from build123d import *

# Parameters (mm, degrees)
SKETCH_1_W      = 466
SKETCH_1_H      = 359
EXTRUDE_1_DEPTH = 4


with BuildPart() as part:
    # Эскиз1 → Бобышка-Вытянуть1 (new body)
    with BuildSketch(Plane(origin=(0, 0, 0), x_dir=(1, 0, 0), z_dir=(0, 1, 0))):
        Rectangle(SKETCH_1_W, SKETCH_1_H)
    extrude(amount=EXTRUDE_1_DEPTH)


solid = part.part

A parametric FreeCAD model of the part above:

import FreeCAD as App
import Part
import Sketcher
Q = App.Units.Quantity

doc = App.newDocument("Part")
body = doc.addObject("PartDesign::Body", "Body")

# Sketch on XZ plane
sketch1 = body.newObject("Sketcher::SketchObject", "Sketch")
sketch1.AttachmentSupport = (doc.getObject("XZ_Plane"), [""])
sketch1.MapMode = "FlatFace"
sketch1.addGeometry([
    Part.LineSegment(App.Vector(-233, -180, 0), App.Vector(-233, 180, 0)),
    Part.LineSegment(App.Vector(-233, 180, 0), App.Vector(233, 180, 0)),
    Part.LineSegment(App.Vector(233, 180, 0), App.Vector(233, -180, 0)),
    Part.LineSegment(App.Vector(233, -180, 0), App.Vector(-233, -180, 0)),
], False)
sketch1.addConstraint([
    Sketcher.Constraint("Coincident", 0, 2, 1, 1),
    Sketcher.Constraint("Coincident", 1, 2, 2, 1),
    Sketcher.Constraint("Coincident", 2, 2, 3, 1),
    Sketcher.Constraint("Coincident", 3, 2, 0, 1),
    Sketcher.Constraint("Vertical", 0),
    Sketcher.Constraint("Horizontal", 1),
    Sketcher.Constraint("Vertical", 2),
    Sketcher.Constraint("Horizontal", 3),
    Sketcher.Constraint("Symmetric", 0, 2, 2, 2, -1, 1),
    Sketcher.Constraint("DistanceX", 1, 1, 1, 2, Q("466 mm")),
    Sketcher.Constraint("DistanceY", 0, 1, 0, 2, Q("359 mm")),
])
pad1 = body.newObject("PartDesign::Pad", "Pad")
pad1.Profile = sketch1
pad1.Length = 4
pad1.Reversed = True

doc.recompute()
